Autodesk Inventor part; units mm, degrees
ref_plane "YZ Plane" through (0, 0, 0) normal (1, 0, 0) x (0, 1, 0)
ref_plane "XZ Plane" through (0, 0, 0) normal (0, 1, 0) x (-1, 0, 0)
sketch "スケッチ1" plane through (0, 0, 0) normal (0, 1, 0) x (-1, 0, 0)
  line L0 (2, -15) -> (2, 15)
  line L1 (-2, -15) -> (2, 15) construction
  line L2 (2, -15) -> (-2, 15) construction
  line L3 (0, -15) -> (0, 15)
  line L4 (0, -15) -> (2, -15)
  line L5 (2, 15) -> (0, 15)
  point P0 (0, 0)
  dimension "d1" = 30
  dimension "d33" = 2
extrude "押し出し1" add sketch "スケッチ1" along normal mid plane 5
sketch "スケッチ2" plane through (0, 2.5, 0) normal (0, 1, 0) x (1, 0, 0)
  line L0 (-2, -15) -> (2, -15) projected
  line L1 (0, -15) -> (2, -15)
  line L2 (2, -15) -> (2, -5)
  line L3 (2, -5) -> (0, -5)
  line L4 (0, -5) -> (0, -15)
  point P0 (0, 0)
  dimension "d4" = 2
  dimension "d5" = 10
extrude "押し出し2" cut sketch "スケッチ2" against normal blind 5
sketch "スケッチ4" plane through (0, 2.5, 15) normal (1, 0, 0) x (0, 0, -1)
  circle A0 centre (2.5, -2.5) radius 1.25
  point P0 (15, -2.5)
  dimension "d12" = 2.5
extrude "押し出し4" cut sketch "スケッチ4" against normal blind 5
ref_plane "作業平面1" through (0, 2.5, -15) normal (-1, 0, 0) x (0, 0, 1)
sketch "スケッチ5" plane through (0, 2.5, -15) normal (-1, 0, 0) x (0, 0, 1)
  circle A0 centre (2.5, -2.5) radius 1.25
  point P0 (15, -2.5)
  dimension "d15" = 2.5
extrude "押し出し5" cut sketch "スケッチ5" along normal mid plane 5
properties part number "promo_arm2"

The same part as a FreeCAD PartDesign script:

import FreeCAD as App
import Part
import Sketcher
from FreeCAD import Vector
Q = App.Units.Quantity


def add_polygon(sketch, points):
    """Adds a closed chain of lines whose ends are joined by coincident constraints."""
    first, n = sketch.GeometryCount, len(points)
    for a, b in zip(points, points[1:] + points[:1]):
        sketch.addGeometry(Part.LineSegment(App.Vector(*a, 0), App.Vector(*b, 0)), False)
    for i in range(n):
        sketch.addConstraint(Sketcher.Constraint("Coincident", first + i, 2, first + (i + 1) % n, 1))

doc = App.newDocument("Part")
params = doc.addObject("Spreadsheet::Sheet", "Params")
for row, (alias, value) in enumerate([
    ("sketch1_width", "2 mm"),
    ("sketch1_height", "30 mm"),
    ("pad1_length", "5 mm"),
    ("sketch2_width", "2 mm"),
    ("sketch2_height", "10 mm"),
    ("pocket1_length", "5 mm"),
    ("sketch3_diameter", "2.5 mm"),
    ("pocket2_length", "5 mm"),
    ("sketch4_diameter", "2.5 mm"),
    ("pocket3_length", "5 mm"),
], start=1):
    params.set(f"A{row}", alias)
    params.set(f"B{row}", "=" + value)
    params.setAlias(f"B{row}", alias)

body = doc.addObject("PartDesign::Body", "Body")

sketch1 = body.newObject("Sketcher::SketchObject", "Sketch")
sketch1.AttachmentSupport = (doc.getObject("XZ_Plane"), [""])
sketch1.MapMode = "FlatFace"
add_polygon(sketch1, [(0, -15), (-2, -15), (-2, 15), (0, 15)])
sketch1.addConstraint(Sketcher.Constraint("Horizontal", 0))
sketch1.addConstraint(Sketcher.Constraint("Vertical", 1))
sketch1.addConstraint(Sketcher.Constraint("Horizontal", 2))
sketch1.addConstraint(Sketcher.Constraint("Vertical", 3))
sketch1.addConstraint(Sketcher.Constraint("Symmetric", 2, 2, 3, 2, -1, 1))
sketch1.addConstraint(Sketcher.Constraint("DistanceX", 0, 2, 0, 1, Q("2 mm")))
sketch1.addConstraint(Sketcher.Constraint("DistanceY", 1, 1, 1, 2, Q("30 mm")))
sketch1.setExpression("Constraints[9]", "Params.sketch1_width")
sketch1.setExpression("Constraints[10]", "Params.sketch1_height")
pad1 = body.newObject("PartDesign::Pad", "Pad")
pad1.Profile = sketch1
pad1.setExpression("Length", "Params.pad1_length")
pad1.Midplane = True

sketch2 = body.newObject("Sketcher::SketchObject", "Sketch001")
sketch2.AttachmentSupport = (doc.getObject("XZ_Plane"), [""])
sketch2.MapMode = "FlatFace"
sketch2.AttachmentOffset = App.Placement(Vector(0, 0, -2.5), App.Rotation())
add_polygon(sketch2, [(0, 5), (0, 15), (2, 15), (2, 5)])
sketch2.addConstraint(Sketcher.Constraint("Vertical", 0))
sketch2.addConstraint(Sketcher.Constraint("Horizontal", 1))
sketch2.addConstraint(Sketcher.Constraint("Vertical", 2))
sketch2.addConstraint(Sketcher.Constraint("Horizontal", 3))
sketch2.addConstraint(Sketcher.Constraint("PointOnObject", 0, 2, -2))
sketch2.addConstraint(Sketcher.Constraint("DistanceX", 1, 1, 1, 2, Q("2 mm")))
sketch2.addConstraint(Sketcher.Constraint("DistanceY", 0, 1, 0, 2, Q("10 mm")))
sketch2.addConstraint(Sketcher.Constraint("DistanceY", -1, 1, 0, 2, Q("15 mm")))
sketch2.setExpression("Constraints[9]", "Params.sketch2_width")
sketch2.setExpression("Constraints[10]", "Params.sketch2_height")
pocket1 = body.newObject("PartDesign::Pocket", "Pocket")
pocket1.Profile = sketch2
pocket1.setExpression("Length", "Params.pocket1_length")
pocket1.Reversed = True

sketch3 = body.newObject("Sketcher::SketchObject", "Sketch002")
sketch3.AttachmentSupport = (doc.getObject("YZ_Plane"), [""])
sketch3.MapMode = "FlatFace"
sketch3.addGeometry(Part.Circle(Vector(0, 12.5, 0), Vector(0, 0, 1), 1.2), False)
sketch3.addConstraint(Sketcher.Constraint("PointOnObject", 0, 3, -2))
sketch3.addConstraint(Sketcher.Constraint("Diameter", 0, Q("2.5 mm")))
sketch3.addConstraint(Sketcher.Constraint("DistanceY", -1, 1, 0, 3, Q("12.5 mm")))
sketch3.setExpression("Constraints[1]", "Params.sketch3_diameter")
pocket2 = body.newObject("PartDesign::Pocket", "Pocket001")
pocket2.Profile = sketch3
pocket2.setExpression("Length", "Params.pocket2_length")

sketch4 = body.newObject("Sketcher::SketchObject", "Sketch003")
sketch4.AttachmentSupport = (doc.getObject("YZ_Plane"), [""])
sketch4.MapMode = "FlatFace"
sketch4.addGeometry(Part.Circle(Vector(0, -12.5, 0), Vector(0, 0, 1), 1.2), False)
sketch4.addConstraint(Sketcher.Constraint("PointOnObject", 0, 3, -2))
sketch4.addConstraint(Sketcher.Constraint("Diameter", 0, Q("2.5 mm")))
sketch4.addConstraint(Sketcher.Constraint("DistanceY", 0, 3, -1, 1, Q("12.5 mm")))
sketch4.setExpression("Constraints[1]", "Params.sketch4_diameter")
pocket3 = body.newObject("PartDesign::Pocket", "Pocket002")
pocket3.Profile = sketch4
pocket3.setExpression("Length", "Params.pocket3_length")
pocket3.Midplane = True

doc.recompute()
